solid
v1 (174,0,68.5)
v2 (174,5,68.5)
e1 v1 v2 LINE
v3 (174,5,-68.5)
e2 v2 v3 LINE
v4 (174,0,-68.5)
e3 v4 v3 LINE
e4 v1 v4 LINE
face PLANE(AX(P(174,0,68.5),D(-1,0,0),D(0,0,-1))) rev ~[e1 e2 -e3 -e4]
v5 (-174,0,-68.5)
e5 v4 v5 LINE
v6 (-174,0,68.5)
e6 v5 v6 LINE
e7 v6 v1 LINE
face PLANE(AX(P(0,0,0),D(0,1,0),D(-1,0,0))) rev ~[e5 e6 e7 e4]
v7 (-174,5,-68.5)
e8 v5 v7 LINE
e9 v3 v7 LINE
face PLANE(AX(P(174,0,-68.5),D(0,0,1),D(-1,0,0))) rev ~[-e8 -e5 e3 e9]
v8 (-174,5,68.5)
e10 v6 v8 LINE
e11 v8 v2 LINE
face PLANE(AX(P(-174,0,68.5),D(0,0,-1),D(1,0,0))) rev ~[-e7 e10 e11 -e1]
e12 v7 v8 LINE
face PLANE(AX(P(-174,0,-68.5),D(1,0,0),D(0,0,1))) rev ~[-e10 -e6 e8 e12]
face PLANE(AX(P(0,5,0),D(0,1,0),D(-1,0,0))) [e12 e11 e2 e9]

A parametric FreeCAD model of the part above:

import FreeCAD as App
import Part
import Sketcher

doc = App.newDocument("Part")
body = doc.addObject("PartDesign::Body", "Body")

# Sketch on XZ plane
sketch1 = body.newObject("Sketcher::SketchObject", "Sketch")
sketch1.AttachmentSupport = (doc.getObject("XZ_Plane"), [""])
sketch1.MapMode = "FlatFace"
sketch1.addGeometry([
    Part.LineSegment(App.Vector(174, 68.5, 0), App.Vector(174, -68.5, 0)),
    Part.LineSegment(App.Vector(174, -68.5, 0), App.Vector(-174, -68.5, 0)),
    Part.LineSegment(App.Vector(-174, -68.5, 0), App.Vector(-174, 68.5, 0)),
    Part.LineSegment(App.Vector(-174, 68.5, 0), App.Vector(174, 68.5, 0)),
], False)
sketch1.addConstraint([
    Sketcher.Constraint("Coincident", 0, 2, 1, 1),
    Sketcher.Constraint("Coincident", 1, 2, 2, 1),
    Sketcher.Constraint("Coincident", 2, 2, 3, 1),
    Sketcher.Constraint("Coincident", 3, 2, 0, 1),
    Sketcher.Constraint("Vertical", 0),
    Sketcher.Constraint("Horizontal", 1),
    Sketcher.Constraint("Vertical", 2),
    Sketcher.Constraint("Horizontal", 3),
    Sketcher.Constraint("Symmetric", 0, 2, 2, 2, -1, 1),
    Sketcher.Constraint("DistanceX", 1, 2, 1, 1, 348.0),
    Sketcher.Constraint("DistanceY", 0, 2, 0, 1, 137.0),
])
pad1 = body.newObject("PartDesign::Pad", "Pad")
pad1.Profile = sketch1
pad1.Length = 5
pad1.Reversed = True

doc.recompute()
